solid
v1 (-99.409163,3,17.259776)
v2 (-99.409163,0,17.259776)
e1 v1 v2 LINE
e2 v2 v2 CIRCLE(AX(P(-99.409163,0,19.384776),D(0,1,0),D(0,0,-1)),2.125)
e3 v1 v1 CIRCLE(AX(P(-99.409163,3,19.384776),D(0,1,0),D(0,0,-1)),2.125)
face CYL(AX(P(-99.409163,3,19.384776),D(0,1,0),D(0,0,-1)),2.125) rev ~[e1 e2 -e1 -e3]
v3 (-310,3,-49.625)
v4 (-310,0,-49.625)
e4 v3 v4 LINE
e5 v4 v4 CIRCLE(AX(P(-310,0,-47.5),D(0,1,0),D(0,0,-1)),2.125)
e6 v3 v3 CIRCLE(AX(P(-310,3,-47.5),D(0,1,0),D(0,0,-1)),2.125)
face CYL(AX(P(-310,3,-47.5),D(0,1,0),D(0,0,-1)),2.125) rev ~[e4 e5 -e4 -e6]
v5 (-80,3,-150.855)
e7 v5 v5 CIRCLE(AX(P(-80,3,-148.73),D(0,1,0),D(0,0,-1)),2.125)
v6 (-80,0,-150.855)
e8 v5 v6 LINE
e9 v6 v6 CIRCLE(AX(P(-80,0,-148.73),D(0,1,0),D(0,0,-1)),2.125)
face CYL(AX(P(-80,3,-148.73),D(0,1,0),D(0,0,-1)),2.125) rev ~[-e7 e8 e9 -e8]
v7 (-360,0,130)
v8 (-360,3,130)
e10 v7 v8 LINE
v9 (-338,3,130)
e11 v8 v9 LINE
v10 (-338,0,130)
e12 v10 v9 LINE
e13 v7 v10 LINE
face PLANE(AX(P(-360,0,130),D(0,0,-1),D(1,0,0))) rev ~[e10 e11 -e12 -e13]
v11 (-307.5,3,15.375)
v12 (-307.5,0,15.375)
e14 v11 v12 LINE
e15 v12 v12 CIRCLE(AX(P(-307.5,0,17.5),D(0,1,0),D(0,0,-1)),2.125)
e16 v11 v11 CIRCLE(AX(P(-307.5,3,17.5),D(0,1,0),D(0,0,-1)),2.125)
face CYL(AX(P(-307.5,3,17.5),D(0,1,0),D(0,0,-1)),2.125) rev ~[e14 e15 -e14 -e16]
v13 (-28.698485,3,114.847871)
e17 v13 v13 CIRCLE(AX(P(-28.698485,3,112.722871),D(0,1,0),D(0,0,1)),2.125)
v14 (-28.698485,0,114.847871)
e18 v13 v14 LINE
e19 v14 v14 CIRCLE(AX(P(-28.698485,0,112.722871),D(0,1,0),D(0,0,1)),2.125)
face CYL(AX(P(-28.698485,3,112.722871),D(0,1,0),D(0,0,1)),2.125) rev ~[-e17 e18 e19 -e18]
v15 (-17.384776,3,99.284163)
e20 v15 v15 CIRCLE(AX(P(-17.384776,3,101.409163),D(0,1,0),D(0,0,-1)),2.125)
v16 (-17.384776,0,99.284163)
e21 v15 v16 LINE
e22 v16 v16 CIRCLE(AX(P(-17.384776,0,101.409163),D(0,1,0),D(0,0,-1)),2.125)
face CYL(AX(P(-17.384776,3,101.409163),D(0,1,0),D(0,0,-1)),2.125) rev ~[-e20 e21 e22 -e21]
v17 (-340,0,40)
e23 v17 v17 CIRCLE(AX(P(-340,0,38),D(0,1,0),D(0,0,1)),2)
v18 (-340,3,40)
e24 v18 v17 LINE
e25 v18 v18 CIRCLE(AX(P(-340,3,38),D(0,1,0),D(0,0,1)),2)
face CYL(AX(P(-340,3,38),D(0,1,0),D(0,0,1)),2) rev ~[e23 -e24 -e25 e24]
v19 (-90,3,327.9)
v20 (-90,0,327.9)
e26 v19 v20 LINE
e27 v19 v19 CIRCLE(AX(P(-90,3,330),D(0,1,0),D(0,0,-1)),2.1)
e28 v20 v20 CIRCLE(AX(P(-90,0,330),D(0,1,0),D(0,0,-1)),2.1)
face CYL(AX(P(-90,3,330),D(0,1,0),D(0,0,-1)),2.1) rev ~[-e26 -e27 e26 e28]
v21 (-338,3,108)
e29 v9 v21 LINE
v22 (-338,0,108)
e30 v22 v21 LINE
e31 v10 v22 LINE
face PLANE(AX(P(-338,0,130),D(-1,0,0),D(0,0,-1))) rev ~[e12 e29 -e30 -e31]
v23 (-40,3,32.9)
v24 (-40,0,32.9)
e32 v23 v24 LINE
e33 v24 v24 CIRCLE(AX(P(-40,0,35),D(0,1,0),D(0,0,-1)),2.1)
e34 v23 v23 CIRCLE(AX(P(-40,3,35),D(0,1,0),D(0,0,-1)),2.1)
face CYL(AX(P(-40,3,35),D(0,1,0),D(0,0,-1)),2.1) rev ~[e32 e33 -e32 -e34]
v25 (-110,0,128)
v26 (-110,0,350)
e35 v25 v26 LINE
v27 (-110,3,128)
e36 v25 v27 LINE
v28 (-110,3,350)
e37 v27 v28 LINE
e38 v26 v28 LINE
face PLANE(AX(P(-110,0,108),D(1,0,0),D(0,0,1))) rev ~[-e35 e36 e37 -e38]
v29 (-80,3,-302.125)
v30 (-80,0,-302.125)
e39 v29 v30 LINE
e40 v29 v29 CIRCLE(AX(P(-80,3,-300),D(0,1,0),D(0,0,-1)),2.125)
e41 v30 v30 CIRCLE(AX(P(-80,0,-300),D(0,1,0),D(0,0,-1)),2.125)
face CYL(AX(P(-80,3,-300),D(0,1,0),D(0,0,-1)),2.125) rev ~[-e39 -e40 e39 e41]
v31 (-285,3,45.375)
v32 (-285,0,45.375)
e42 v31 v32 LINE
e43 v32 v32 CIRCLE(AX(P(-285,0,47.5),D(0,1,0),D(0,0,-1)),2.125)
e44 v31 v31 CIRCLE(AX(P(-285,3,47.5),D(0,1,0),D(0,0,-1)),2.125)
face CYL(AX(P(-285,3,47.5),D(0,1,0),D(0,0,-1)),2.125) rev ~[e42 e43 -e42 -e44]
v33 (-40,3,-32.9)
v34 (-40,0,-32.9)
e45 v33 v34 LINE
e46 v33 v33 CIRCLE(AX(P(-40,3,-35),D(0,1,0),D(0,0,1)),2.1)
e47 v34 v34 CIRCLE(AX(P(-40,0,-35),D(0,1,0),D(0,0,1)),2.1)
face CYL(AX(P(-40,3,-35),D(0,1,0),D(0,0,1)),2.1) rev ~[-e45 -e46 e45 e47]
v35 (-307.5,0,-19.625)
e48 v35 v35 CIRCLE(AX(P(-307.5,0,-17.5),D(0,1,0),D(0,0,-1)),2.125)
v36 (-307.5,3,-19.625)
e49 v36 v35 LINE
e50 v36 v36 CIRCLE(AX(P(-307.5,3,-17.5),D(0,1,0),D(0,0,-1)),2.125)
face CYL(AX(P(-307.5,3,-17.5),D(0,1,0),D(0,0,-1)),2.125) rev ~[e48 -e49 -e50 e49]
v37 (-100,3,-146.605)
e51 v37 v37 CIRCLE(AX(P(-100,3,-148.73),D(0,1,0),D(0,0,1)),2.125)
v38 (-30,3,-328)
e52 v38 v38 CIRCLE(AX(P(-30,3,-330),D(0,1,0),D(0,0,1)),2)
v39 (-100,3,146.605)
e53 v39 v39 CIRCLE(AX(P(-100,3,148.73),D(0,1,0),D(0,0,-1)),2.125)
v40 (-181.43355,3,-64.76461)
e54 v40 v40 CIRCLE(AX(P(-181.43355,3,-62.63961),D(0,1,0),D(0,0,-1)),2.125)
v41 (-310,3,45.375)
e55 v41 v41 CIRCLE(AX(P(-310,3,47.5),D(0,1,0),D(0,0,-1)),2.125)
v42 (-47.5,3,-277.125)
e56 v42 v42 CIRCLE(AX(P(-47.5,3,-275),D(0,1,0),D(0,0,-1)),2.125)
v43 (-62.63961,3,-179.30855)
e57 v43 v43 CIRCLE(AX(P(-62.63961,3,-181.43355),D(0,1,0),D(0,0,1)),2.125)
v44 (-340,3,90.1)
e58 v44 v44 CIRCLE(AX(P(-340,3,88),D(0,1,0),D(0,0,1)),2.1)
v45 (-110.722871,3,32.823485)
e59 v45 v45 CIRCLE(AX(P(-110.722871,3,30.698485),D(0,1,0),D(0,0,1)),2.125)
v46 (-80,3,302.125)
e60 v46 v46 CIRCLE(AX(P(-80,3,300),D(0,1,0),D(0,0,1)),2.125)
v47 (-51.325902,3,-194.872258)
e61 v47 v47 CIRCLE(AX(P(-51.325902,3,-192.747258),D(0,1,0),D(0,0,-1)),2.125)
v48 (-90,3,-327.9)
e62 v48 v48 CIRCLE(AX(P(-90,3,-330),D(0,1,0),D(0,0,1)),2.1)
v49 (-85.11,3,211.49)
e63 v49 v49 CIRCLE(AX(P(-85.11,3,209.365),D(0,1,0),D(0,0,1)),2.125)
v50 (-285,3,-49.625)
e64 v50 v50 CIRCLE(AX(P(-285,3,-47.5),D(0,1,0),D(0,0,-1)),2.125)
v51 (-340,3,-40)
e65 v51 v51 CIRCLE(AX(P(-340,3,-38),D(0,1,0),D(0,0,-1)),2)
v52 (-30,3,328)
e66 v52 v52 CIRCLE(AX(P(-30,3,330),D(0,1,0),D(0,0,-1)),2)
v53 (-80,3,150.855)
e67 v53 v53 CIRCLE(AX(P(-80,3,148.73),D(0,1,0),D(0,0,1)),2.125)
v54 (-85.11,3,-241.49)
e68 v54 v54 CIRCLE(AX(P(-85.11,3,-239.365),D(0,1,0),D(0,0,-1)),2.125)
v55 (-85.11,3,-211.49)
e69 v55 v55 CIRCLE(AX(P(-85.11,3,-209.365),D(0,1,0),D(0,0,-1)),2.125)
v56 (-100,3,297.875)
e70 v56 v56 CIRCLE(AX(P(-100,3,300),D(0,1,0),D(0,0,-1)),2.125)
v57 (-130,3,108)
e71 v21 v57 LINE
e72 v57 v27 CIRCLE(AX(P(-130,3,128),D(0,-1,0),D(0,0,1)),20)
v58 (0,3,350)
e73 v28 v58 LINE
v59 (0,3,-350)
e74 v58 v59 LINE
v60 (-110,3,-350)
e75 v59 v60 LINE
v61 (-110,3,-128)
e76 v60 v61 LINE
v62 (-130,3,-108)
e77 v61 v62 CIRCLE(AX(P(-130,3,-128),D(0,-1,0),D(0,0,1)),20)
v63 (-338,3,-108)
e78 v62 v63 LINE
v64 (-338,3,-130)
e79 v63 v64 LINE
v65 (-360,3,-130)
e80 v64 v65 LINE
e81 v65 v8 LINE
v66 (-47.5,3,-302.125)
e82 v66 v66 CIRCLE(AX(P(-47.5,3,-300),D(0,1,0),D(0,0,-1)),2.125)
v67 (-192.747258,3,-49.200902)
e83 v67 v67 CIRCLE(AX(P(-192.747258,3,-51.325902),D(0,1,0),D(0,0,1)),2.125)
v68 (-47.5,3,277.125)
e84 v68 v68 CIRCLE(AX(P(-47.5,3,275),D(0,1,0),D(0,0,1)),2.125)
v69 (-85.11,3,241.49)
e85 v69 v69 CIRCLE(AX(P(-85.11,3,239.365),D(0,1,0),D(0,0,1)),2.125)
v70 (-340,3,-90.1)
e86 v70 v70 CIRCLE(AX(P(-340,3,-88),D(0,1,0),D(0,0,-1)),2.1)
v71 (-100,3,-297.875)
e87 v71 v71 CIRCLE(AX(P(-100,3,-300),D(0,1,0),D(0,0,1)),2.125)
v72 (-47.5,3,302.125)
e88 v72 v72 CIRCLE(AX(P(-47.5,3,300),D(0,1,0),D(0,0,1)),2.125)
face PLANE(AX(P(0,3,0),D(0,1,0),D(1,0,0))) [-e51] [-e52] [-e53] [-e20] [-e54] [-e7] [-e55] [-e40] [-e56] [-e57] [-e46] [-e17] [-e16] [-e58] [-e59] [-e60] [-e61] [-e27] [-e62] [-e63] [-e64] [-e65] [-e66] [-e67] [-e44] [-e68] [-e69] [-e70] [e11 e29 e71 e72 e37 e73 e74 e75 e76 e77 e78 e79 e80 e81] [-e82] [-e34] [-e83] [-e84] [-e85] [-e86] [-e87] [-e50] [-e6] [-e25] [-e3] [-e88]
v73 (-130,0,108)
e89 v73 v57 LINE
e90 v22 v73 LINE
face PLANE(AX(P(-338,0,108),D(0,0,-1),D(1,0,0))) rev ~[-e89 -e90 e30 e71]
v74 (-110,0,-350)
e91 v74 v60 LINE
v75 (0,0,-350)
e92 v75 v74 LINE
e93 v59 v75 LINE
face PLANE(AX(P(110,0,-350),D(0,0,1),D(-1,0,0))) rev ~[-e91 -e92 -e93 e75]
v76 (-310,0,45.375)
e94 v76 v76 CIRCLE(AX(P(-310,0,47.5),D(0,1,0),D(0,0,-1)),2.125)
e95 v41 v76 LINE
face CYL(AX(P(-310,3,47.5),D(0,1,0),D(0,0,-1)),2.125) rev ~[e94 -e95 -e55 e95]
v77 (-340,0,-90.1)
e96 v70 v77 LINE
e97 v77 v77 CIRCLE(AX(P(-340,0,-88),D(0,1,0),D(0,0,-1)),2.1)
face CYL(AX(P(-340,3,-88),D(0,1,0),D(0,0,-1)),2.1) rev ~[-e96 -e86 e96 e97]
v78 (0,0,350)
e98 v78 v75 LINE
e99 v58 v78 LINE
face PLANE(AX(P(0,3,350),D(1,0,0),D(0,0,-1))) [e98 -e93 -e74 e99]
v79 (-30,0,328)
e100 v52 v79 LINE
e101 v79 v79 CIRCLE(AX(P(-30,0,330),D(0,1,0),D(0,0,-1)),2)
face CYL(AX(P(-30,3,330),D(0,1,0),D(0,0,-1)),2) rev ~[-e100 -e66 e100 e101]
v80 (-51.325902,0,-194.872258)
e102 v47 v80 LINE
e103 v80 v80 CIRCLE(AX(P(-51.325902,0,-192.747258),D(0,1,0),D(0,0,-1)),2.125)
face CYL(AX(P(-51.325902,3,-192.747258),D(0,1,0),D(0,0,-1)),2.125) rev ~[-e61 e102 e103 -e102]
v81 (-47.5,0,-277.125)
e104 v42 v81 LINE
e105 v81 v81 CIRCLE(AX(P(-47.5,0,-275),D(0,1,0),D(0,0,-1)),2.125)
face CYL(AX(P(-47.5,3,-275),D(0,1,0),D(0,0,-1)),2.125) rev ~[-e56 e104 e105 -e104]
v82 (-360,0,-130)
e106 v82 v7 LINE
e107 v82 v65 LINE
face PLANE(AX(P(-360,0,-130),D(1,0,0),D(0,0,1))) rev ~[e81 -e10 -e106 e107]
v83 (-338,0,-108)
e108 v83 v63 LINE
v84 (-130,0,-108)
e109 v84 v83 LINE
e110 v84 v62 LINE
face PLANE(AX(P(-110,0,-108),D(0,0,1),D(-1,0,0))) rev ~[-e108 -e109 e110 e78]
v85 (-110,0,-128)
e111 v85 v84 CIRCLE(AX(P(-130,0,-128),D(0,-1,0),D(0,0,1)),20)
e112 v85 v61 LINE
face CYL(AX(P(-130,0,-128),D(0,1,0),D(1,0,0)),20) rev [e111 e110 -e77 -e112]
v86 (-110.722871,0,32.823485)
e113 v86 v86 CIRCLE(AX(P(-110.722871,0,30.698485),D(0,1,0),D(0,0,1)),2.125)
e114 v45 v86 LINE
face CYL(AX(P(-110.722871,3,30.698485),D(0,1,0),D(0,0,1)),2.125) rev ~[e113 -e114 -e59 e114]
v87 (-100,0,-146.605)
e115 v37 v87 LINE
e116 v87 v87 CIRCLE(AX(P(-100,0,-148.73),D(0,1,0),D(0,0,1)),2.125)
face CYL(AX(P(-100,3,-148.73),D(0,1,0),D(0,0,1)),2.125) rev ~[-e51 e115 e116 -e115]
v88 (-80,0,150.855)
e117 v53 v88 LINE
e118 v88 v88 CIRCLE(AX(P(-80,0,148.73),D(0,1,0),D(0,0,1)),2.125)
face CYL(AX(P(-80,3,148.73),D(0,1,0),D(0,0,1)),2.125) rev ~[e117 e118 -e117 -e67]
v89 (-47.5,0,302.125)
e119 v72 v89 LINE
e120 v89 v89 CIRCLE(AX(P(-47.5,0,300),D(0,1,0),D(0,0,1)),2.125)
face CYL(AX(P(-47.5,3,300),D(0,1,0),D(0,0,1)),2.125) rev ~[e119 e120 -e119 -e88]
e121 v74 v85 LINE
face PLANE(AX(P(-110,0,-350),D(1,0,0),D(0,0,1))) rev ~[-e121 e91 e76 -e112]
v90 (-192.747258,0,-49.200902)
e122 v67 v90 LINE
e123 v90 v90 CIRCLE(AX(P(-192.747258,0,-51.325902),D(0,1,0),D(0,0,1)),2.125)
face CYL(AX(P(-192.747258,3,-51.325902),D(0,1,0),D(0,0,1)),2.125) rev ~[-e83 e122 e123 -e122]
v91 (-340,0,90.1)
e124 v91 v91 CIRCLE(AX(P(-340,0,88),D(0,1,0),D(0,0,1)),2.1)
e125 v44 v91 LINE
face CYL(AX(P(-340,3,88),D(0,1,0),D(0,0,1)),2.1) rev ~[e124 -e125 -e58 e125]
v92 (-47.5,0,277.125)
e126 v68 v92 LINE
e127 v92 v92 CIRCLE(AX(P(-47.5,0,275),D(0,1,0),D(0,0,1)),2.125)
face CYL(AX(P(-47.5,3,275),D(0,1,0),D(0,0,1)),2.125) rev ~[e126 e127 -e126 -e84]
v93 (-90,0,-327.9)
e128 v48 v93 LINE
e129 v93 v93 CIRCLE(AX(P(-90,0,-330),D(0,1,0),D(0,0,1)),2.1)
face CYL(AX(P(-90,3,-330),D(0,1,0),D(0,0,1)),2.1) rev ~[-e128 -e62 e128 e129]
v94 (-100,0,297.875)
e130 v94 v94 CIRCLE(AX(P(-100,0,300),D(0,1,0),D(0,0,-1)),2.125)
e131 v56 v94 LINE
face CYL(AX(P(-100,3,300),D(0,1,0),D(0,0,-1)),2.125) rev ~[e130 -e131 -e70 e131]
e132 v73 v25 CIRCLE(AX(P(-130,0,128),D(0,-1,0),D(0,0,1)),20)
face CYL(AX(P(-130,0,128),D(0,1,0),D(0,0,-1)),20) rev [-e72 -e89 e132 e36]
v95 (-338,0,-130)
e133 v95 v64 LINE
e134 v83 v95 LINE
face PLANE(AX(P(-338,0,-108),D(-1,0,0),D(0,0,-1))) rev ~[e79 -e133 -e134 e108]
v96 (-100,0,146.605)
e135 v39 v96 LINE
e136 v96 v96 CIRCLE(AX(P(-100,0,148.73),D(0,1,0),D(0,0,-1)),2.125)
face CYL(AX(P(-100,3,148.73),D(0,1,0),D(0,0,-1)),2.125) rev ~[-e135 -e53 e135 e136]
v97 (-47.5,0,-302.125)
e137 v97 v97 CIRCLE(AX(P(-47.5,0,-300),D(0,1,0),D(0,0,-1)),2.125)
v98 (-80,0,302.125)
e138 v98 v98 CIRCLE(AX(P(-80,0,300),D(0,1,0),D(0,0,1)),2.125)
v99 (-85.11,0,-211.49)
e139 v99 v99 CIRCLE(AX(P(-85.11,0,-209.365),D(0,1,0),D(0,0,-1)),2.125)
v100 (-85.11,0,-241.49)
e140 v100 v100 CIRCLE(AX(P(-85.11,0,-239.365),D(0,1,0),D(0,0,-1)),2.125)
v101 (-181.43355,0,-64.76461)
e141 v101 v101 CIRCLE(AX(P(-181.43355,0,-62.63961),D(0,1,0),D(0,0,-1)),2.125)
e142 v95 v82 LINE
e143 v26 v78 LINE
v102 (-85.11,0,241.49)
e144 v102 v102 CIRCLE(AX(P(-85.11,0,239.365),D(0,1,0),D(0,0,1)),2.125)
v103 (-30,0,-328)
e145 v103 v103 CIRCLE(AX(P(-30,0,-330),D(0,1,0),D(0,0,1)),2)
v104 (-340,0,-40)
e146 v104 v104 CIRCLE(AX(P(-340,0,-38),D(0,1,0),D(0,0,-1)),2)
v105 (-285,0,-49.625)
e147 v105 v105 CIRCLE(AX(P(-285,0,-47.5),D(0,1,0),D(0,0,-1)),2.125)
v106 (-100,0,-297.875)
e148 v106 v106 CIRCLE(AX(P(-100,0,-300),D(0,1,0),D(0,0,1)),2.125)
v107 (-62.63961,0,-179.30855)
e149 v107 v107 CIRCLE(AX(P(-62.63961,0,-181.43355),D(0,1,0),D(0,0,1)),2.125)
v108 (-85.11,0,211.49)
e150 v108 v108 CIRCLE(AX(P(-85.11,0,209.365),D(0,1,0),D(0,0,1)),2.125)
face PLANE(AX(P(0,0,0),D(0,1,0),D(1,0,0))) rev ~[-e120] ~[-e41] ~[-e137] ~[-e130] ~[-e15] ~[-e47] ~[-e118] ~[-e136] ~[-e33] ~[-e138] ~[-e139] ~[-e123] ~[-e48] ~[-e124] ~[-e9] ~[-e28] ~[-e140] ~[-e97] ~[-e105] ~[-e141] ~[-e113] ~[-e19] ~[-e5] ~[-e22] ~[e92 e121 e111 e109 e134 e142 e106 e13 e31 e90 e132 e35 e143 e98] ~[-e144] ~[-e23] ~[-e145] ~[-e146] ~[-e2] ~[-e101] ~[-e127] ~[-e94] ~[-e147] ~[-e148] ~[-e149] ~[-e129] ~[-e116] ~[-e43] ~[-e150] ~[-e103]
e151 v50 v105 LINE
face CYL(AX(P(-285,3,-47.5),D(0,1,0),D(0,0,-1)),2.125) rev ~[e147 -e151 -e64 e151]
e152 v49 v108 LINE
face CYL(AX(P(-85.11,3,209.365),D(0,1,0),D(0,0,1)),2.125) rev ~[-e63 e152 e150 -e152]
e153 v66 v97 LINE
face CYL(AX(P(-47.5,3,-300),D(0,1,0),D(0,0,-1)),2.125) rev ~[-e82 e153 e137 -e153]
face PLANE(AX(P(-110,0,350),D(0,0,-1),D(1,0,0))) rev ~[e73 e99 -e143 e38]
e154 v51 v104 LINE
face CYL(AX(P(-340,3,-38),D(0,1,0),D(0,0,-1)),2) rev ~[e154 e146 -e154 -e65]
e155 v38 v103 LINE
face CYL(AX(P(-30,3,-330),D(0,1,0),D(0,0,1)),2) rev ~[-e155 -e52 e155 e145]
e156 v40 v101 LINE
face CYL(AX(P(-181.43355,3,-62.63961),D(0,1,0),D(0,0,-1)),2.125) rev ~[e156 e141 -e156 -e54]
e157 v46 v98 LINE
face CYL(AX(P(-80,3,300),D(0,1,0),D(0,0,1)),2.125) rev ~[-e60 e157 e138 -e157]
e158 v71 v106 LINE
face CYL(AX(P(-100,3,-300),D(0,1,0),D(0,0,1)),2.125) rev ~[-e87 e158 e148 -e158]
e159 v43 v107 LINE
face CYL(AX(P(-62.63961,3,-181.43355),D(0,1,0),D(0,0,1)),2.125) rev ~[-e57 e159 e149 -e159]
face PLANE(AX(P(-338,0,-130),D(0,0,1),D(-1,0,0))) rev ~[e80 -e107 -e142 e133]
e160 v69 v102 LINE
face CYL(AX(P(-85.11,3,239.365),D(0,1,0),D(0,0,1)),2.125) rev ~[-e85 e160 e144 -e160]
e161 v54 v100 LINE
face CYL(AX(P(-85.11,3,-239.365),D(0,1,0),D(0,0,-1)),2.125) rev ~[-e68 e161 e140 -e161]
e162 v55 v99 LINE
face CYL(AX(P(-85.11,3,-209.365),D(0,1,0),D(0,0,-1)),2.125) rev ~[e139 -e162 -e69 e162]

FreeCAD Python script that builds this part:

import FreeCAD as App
import Part
import Sketcher


def edges_at(feature, points):
    """Names of the edges that pass closest to the given points."""
    edges = feature.Shape.Edges
    near = lambda p: min(range(len(edges)), key=lambda i: edges[i].distToShape(Part.Vertex(*p))[0])
    return sorted({f"Edge{near(p) + 1}" for p in points})


def add_polygon(sketch, points):
    """Adds a closed chain of lines whose ends are joined by coincident constraints."""
    first, n = sketch.GeometryCount, len(points)
    for a, b in zip(points, points[1:] + points[:1]):
        sketch.addGeometry(Part.LineSegment(App.Vector(*a, 0), App.Vector(*b, 0)), False)
    for i in range(n):
        sketch.addConstraint(Sketcher.Constraint("Coincident", first + i, 2, first + (i + 1) % n, 1))

doc = App.newDocument("Part")
body = doc.addObject("PartDesign::Body", "Body")

# Sketch on XZ plane
sketch1 = body.newObject("Sketcher::SketchObject", "Sketch")
sketch1.AttachmentSupport = (doc.getObject("XZ_Plane"), [""])
sketch1.MapMode = "FlatFace"
add_polygon(sketch1, [(-110, -350), (-110, -108), (-338, -108), (-338, -130), (-360, -130), (-360, 130), (-338, 130), (-338, 108), (-110, 108), (-110, 350), (110, 350), (110, 108), (338, 108), (338, 130), (360, 130), (360, -130), (338, -130), (338, -108), (110, -108), (110, -350)])  # lines 0-19
sketch1.addConstraint(Sketcher.Constraint("Vertical", 0))
sketch1.addConstraint(Sketcher.Constraint("Horizontal", 1))
sketch1.addConstraint(Sketcher.Constraint("Vertical", 2))
sketch1.addConstraint(Sketcher.Constraint("Horizontal", 3))
sketch1.addConstraint(Sketcher.Constraint("Vertical", 4))
sketch1.addConstraint(Sketcher.Constraint("Horizontal", 5))
sketch1.addConstraint(Sketcher.Constraint("Vertical", 6))
sketch1.addConstraint(Sketcher.Constraint("Horizontal", 7))
sketch1.addConstraint(Sketcher.Constraint("Vertical", 8))
sketch1.addConstraint(Sketcher.Constraint("Horizontal", 9))
sketch1.addConstraint(Sketcher.Constraint("Vertical", 10))
sketch1.addConstraint(Sketcher.Constraint("Horizontal", 11))
sketch1.addConstraint(Sketcher.Constraint("Vertical", 12))
sketch1.addConstraint(Sketcher.Constraint("Horizontal", 13))
sketch1.addConstraint(Sketcher.Constraint("Vertical", 14))
sketch1.addConstraint(Sketcher.Constraint("Horizontal", 15))
sketch1.addConstraint(Sketcher.Constraint("Vertical", 16))
sketch1.addConstraint(Sketcher.Constraint("Horizontal", 17))
sketch1.addConstraint(Sketcher.Constraint("Vertical", 18))
sketch1.addConstraint(Sketcher.Constraint("Horizontal", 19))
sketch1.addConstraint(Sketcher.Constraint("Symmetric", 0, 2, 10, 2, -1, 1))
sketch1.addConstraint(Sketcher.Constraint("Symmetric", 2, 2, 12, 2, -1, 1))
sketch1.addConstraint(Sketcher.Constraint("Symmetric", 4, 2, 14, 2, -1, 1))
sketch1.addConstraint(Sketcher.Constraint("Symmetric", 6, 2, 16, 2, -1, 1))
sketch1.addConstraint(Sketcher.Constraint("Symmetric", 8, 2, 18, 2, -1, 1))
sketch1.addConstraint(Sketcher.Constraint("Symmetric", 7, 2, 10, 2, -2))
sketch1.addConstraint(Sketcher.Constraint("Symmetric", 5, 2, 12, 2, -2))
sketch1.addConstraint(Sketcher.Constraint("Equal", 15, 2))
sketch1.addConstraint(Sketcher.Constraint("DistanceX", 1, 2, 1, 1, 228.0))
sketch1.addConstraint(Sketcher.Constraint("DistanceX", 3, 2, 3, 1, 22.0))
sketch1.addConstraint(Sketcher.Constraint("DistanceX", 9, 1, 9, 2, 220.0))
sketch1.addConstraint(Sketcher.Constraint("DistanceY", 0, 1, 0, 2, 242.0))
sketch1.addConstraint(Sketcher.Constraint("DistanceY", 4, 1, 4, 2, 260.0))
pad1 = body.newObject("PartDesign::Pad", "Pad")
pad1.Profile = sketch1
pad1.Length = 3
pad1.Reversed = True

# Sketch on XZ plane
sketch2 = body.newObject("Sketcher::SketchObject", "Sketch001")
sketch2.AttachmentSupport = (doc.getObject("XZ_Plane"), [""])
sketch2.MapMode = "FlatFace"
sketch2.AttachmentOffset = App.Placement(App.Vector(0, 0, -3), App.Rotation())
sketch2.addGeometry(Part.Circle(App.Vector(310, -47.5, 0), App.Vector(0, 0, 1), 2.1), False)
sketch2.addGeometry(Part.Circle(App.Vector(285, -47.5, 0), App.Vector(0, 0, 1), 2.1), False)
sketch2.addGeometry(Part.Circle(App.Vector(307.5, -17.5, 0), App.Vector(0, 0, 1), 2.1), False)
sketch2.addGeometry(Part.Circle(App.Vector(307.5, 17.5, 0), App.Vector(0, 0, 1), 2.1), False)
sketch2.addGeometry(Part.Circle(App.Vector(310, 47.5, 0), App.Vector(0, 0, 1), 2.1), False)
sketch2.addGeometry(Part.Circle(App.Vector(285, 47.5, 0), App.Vector(0, 0, 1), 2.1), False)
sketch2.addGeometry(Part.Circle(App.Vector(-285, 47.5, 0), App.Vector(0, 0, 1), 2.1), False)
sketch2.addGeometry(Part.Circle(App.Vector(-310, 47.5, 0), App.Vector(0, 0, 1), 2.1), False)
sketch2.addGeometry(Part.Circle(App.Vector(-307.5, 17.5, 0), App.Vector(0, 0, 1), 2.1), False)
sketch2.addGeometry(Part.Circle(App.Vector(-307.5, -17.5, 0), App.Vector(0, 0, 1), 2.1), False)
sketch2.addGeometry(Part.Circle(App.Vector(-285, -47.5, 0), App.Vector(0, 0, 1), 2.1), False)
sketch2.addGeometry(Part.Circle(App.Vector(-310, -47.5, 0), App.Vector(0, 0, 1), 2.1), False)
sketch2.addGeometry(Part.Circle(App.Vector(47.5, -300, 0), App.Vector(0, 0, 1), 2.1), False)
sketch2.addGeometry(Part.Circle(App.Vector(47.5, -275, 0), App.Vector(0, 0, 1), 2.1), False)
sketch2.addGeometry(Part.Circle(App.Vector(-47.5, -275, 0), App.Vector(0, 0, 1), 2.1), False)
sketch2.addGeometry(Part.Circle(App.Vector(-47.5, -300, 0), App.Vector(0, 0, 1), 2.1), False)
sketch2.addGeometry(Part.Circle(App.Vector(-47.5, 300, 0), App.Vector(0, 0, 1), 2.1), False)
sketch2.addGeometry(Part.Circle(App.Vector(-47.5, 275, 0), App.Vector(0, 0, 1), 2.1), False)
sketch2.addGeometry(Part.Circle(App.Vector(47.5, 275, 0), App.Vector(0, 0, 1), 2.1), False)
sketch2.addGeometry(Part.Circle(App.Vector(47.5, 300, 0), App.Vector(0, 0, 1), 2.1), False)
sketch2.addConstraint(Sketcher.Constraint("Equal", 0, 1))
sketch2.addConstraint(Sketcher.Constraint("Equal", 1, 2))
sketch2.addConstraint(Sketcher.Constraint("Equal", 2, 3))
sketch2.addConstraint(Sketcher.Constraint("Equal", 3, 4))
sketch2.addConstraint(Sketcher.Constraint("Equal", 4, 5))
sketch2.addConstraint(Sketcher.Constraint("Equal", 5, 6))
sketch2.addConstraint(Sketcher.Constraint("Equal", 6, 7))
sketch2.addConstraint(Sketcher.Constraint("Equal", 7, 8))
sketch2.addConstraint(Sketcher.Constraint("Equal", 8, 9))
sketch2.addConstraint(Sketcher.Constraint("Equal", 9, 10))
sketch2.addConstraint(Sketcher.Constraint("Equal", 10, 11))
sketch2.addConstraint(Sketcher.Constraint("Equal", 11, 12))
sketch2.addConstraint(Sketcher.Constraint("Equal", 12, 13))
sketch2.addConstraint(Sketcher.Constraint("Equal", 13, 14))
sketch2.addConstraint(Sketcher.Constraint("Equal", 14, 15))
sketch2.addConstraint(Sketcher.Constraint("Equal", 15, 16))
sketch2.addConstraint(Sketcher.Constraint("Equal", 16, 17))
sketch2.addConstraint(Sketcher.Constraint("Equal", 17, 18))
sketch2.addConstraint(Sketcher.Constraint("Equal", 18, 19))
sketch2.addConstraint(Sketcher.Constraint("Symmetric", 1, 3, 6, 3, -1, 1))
sketch2.addConstraint(Sketcher.Constraint("Symmetric", 0, 3, 7, 3, -1, 1))
sketch2.addConstraint(Sketcher.Constraint("Symmetric", 2, 3, 8, 3, -1, 1))
sketch2.addConstraint(Sketcher.Constraint("Symmetric", 3, 3, 9, 3, -1, 1))
sketch2.addConstraint(Sketcher.Constraint("Symmetric", 5, 3, 10, 3, -1, 1))
sketch2.addConstraint(Sketcher.Constraint("Symmetric", 4, 3, 11, 3, -1, 1))
sketch2.addConstraint(Sketcher.Constraint("Symmetric", 12, 3, 16, 3, -1, 1))
sketch2.addConstraint(Sketcher.Constraint("Symmetric", 13, 3, 17, 3, -1, 1))
sketch2.addConstraint(Sketcher.Constraint("Symmetric", 14, 3, 18, 3, -1, 1))
sketch2.addConstraint(Sketcher.Constraint("Symmetric", 15, 3, 19, 3, -1, 1))
sketch2.addConstraint(Sketcher.Constraint("Symmetric", 5, 3, 6, 3, -2))
sketch2.addConstraint(Sketcher.Constraint("Symmetric", 4, 3, 7, 3, -2))
sketch2.addConstraint(Sketcher.Constraint("Symmetric", 3, 3, 8, 3, -2))
sketch2.addConstraint(Sketcher.Constraint("Symmetric", 13, 3, 14, 3, -2))
sketch2.addConstraint(Sketcher.Constraint("Symmetric", 12, 3, 15, 3, -2))
sketch2.addConstraint(Sketcher.Constraint("Horizontal", 0, 3, 1, 3))
sketch2.addConstraint(Sketcher.Constraint("Vertical", 12, 3, 13, 3))
sketch2.addConstraint(Sketcher.Constraint("Diameter", 0, 4.25))
sketch2.addConstraint(Sketcher.Constraint("DistanceX", -1, 1, 0, 3, 310.0))
sketch2.addConstraint(Sketcher.Constraint("DistanceX", -1, 1, 1, 3, 285.0))
sketch2.addConstraint(Sketcher.Constraint("DistanceY", 12, 3, -1, 1, 300.0))
sketch2.addConstraint(Sketcher.Constraint("DistanceY", 13, 3, -1, 1, 275.0))
sketch2.addConstraint(Sketcher.Constraint("DistanceY", 0, 3, 2, 3, 30.0))
sketch2.addConstraint(Sketcher.Constraint("DistanceY", 2, 3, 3, 3, 35.0))
sketch2.addConstraint(Sketcher.Constraint("DistanceX", 8, 3, 3, 3, 615.0))
sketch2.addConstraint(Sketcher.Constraint("DistanceX", 12, 3, 2, 3, 260.0))
pocket1 = body.newObject("PartDesign::Pocket", "Pocket")
pocket1.Profile = sketch2
pocket1.Type = "ThroughAll"
pocket1.Reversed = True

# Sketch on XZ plane
sketch3 = body.newObject("Sketcher::SketchObject", "Sketch002")
sketch3.AttachmentSupport = (doc.getObject("XZ_Plane"), [""])
sketch3.MapMode = "FlatFace"
sketch3.AttachmentOffset = App.Placement(App.Vector(0, 0, -3), App.Rotation())
sketch3.addGeometry(Part.Circle(App.Vector(340, -38, 0), App.Vector(0, 0, 1), 2), False)
sketch3.addGeometry(Part.Circle(App.Vector(340, 38, 0), App.Vector(0, 0, 1), 2), False)
sketch3.addGeometry(Part.Circle(App.Vector(-340, 38, 0), App.Vector(0, 0, 1), 2), False)
sketch3.addGeometry(Part.Circle(App.Vector(-340, -38, 0), App.Vector(0, 0, 1), 2), False)
sketch3.addGeometry(Part.Circle(App.Vector(-30, -330, 0), App.Vector(0, 0, 1), 2), False)
sketch3.addGeometry(Part.Circle(App.Vector(30, -330, 0), App.Vector(0, 0, 1), 2), False)
sketch3.addGeometry(Part.Circle(App.Vector(30, 330, 0), App.Vector(0, 0, 1), 2), False)
sketch3.addGeometry(Part.Circle(App.Vector(-30, 330, 0), App.Vector(0, 0, 1), 2), False)
sketch3.addConstraint(Sketcher.Constraint("Equal", 0, 1))
sketch3.addConstraint(Sketcher.Constraint("Equal", 1, 2))
sketch3.addConstraint(Sketcher.Constraint("Equal", 2, 3))
sketch3.addConstraint(Sketcher.Constraint("Equal", 3, 4))
sketch3.addConstraint(Sketcher.Constraint("Equal", 4, 5))
sketch3.addConstraint(Sketcher.Constraint("Equal", 5, 6))
sketch3.addConstraint(Sketcher.Constraint("Equal", 6, 7))
sketch3.addConstraint(Sketcher.Constraint("Symmetric", 0, 3, 2, 3, -1, 1))
sketch3.addConstraint(Sketcher.Constraint("Symmetric", 1, 3, 3, 3, -1, 1))
sketch3.addConstraint(Sketcher.Constraint("Symmetric", 4, 3, 6, 3, -1, 1))
sketch3.addConstraint(Sketcher.Constraint("Symmetric", 5, 3, 7, 3, -1, 1))
sketch3.addConstraint(Sketcher.Constraint("Symmetric", 1, 3, 2, 3, -2))
sketch3.addConstraint(Sketcher.Constraint("Symmetric", 4, 3, 5, 3, -2))
sketch3.addConstraint(Sketcher.Constraint("Diameter", 0, 4.0))
sketch3.addConstraint(Sketcher.Constraint("DistanceX", -1, 1, 0, 3, 340.0))
sketch3.addConstraint(Sketcher.Constraint("DistanceY", 0, 3, -1, 1, 38.0))
sketch3.addConstraint(Sketcher.Constraint("DistanceX", 4, 3, -1, 1, 30.0))
sketch3.addConstraint(Sketcher.Constraint("DistanceY", 4, 3, -1, 1, 330.0))
pocket2 = body.newObject("PartDesign::Pocket", "Pocket001")
pocket2.Profile = sketch3
pocket2.Type = "ThroughAll"
pocket2.Reversed = True

# Sketch on XZ plane
sketch4 = body.newObject("Sketcher::SketchObject", "Sketch003")
sketch4.AttachmentSupport = (doc.getObject("XZ_Plane"), [""])
sketch4.MapMode = "FlatFace"
sketch4.AttachmentOffset = App.Placement(App.Vector(0, 0, -3), App.Rotation())
sketch4.addGeometry(Part.Circle(App.Vector(80, -300, 0), App.Vector(0, 0, 1), 2.1), False)
sketch4.addGeometry(Part.Circle(App.Vector(80, -148.7, 0), App.Vector(0, 0, 1), 2.1), False)
sketch4.addGeometry(Part.Circle(App.Vector(85.1, -239.4, 0), App.Vector(0, 0, 1), 2.1), False)
sketch4.addGeometry(Part.Circle(App.Vector(85.1, -209.4, 0), App.Vector(0, 0, 1), 2.1), False)
sketch4.addGeometry(Part.Circle(App.Vector(100, -148.7, 0), App.Vector(0, 0, 1), 2.1), False)
sketch4.addGeometry(Part.Circle(App.Vector(100, -300, 0), App.Vector(0, 0, 1), 2.1), False)
sketch4.addGeometry(Part.Circle(App.Vector(-100, -300, 0), App.Vector(0, 0, 1), 2.1), False)
sketch4.addGeometry(Part.Circle(App.Vector(-100, -148.7, 0), App.Vector(0, 0, 1), 2.1), False)
sketch4.addGeometry(Part.Circle(App.Vector(-85.1, -209.4, 0), App.Vector(0, 0, 1), 2.1), False)
sketch4.addGeometry(Part.Circle(App.Vector(-85.1, -239.4, 0), App.Vector(0, 0, 1), 2.1), False)
sketch4.addGeometry(Part.Circle(App.Vector(-80, -148.7, 0), App.Vector(0, 0, 1), 2.1), False)
sketch4.addGeometry(Part.Circle(App.Vector(-80, -300, 0), App.Vector(0, 0, 1), 2.1), False)
sketch4.addGeometry(Part.Circle(App.Vector(-80, 300, 0), App.Vector(0, 0, 1), 2.1), False)
sketch4.addGeometry(Part.Circle(App.Vector(-80, 148.7, 0), App.Vector(0, 0, 1), 2.1), False)
sketch4.addGeometry(Part.Circle(App.Vector(-85.1, 239.4, 0), App.Vector(0, 0, 1), 2.1), False)
sketch4.addGeometry(Part.Circle(App.Vector(-85.1, 209.4, 0), App.Vector(0, 0, 1), 2.1), False)
sketch4.addGeometry(Part.Circle(App.Vector(-100, 148.7, 0), App.Vector(0, 0, 1), 2.1), False)
sketch4.addGeometry(Part.Circle(App.Vector(-100, 300, 0), App.Vector(0, 0, 1), 2.1), False)
sketch4.addGeometry(Part.Circle(App.Vector(100, 300, 0), App.Vector(0, 0, 1), 2.1), False)
sketch4.addGeometry(Part.Circle(App.Vector(100, 148.7, 0), App.Vector(0, 0, 1), 2.1), False)
sketch4.addGeometry(Part.Circle(App.Vector(85.1, 209.4, 0), App.Vector(0, 0, 1), 2.1), False)
sketch4.addGeometry(Part.Circle(App.Vector(85.1, 239.4, 0), App.Vector(0, 0, 1), 2.1), False)
sketch4.addGeometry(Part.Circle(App.Vector(80, 148.7, 0), App.Vector(0, 0, 1), 2.1), False)
sketch4.addGeometry(Part.Circle(App.Vector(80, 300, 0), App.Vector(0, 0, 1), 2.1), False)
sketch4.addConstraint(Sketcher.Constraint("Equal", 0, 1))
sketch4.addConstraint(Sketcher.Constraint("Equal", 1, 2))
sketch4.addConstraint(Sketcher.Constraint("Equal", 2, 3))
sketch4.addConstraint(Sketcher.Constraint("Equal", 3, 4))
sketch4.addConstraint(Sketcher.Constraint("Equal", 4, 5))
sketch4.addConstraint(Sketcher.Constraint("Equal", 5, 6))
sketch4.addConstraint(Sketcher.Constraint("Equal", 6, 7))
sketch4.addConstraint(Sketcher.Constraint("Equal", 7, 8))
sketch4.addConstraint(Sketcher.Constraint("Equal", 8, 9))
sketch4.addConstraint(Sketcher.Constraint("Equal", 9, 10))
sketch4.addConstraint(Sketcher.Constraint("Equal", 10, 11))
sketch4.addConstraint(Sketcher.Constraint("Equal", 11, 12))
sketch4.addConstraint(Sketcher.Constraint("Equal", 12, 13))
sketch4.addConstraint(Sketcher.Constraint("Equal", 13, 14))
sketch4.addConstraint(Sketcher.Constraint("Equal", 14, 15))
sketch4.addConstraint(Sketcher.Constraint("Equal", 15, 16))
sketch4.addConstraint(Sketcher.Constraint("Equal", 16, 17))
sketch4.addConstraint(Sketcher.Constraint("Equal", 17, 18))
sketch4.addConstraint(Sketcher.Constraint("Equal", 18, 19))
sketch4.addConstraint(Sketcher.Constraint("Equal", 19, 20))
sketch4.addConstraint(Sketcher.Constraint("Equal", 20, 21))
sketch4.addConstraint(Sketcher.Constraint("Equal", 21, 22))
sketch4.addConstraint(Sketcher.Constraint("Equal", 22, 23))
sketch4.addConstraint(Sketcher.Constraint("Symmetric", 0, 3, 12, 3, -1, 1))
sketch4.addConstraint(Sketcher.Constraint("Symmetric", 1, 3, 13, 3, -1, 1))
sketch4.addConstraint(Sketcher.Constraint("Symmetric", 2, 3, 14, 3, -1, 1))
sketch4.addConstraint(Sketcher.Constraint("Symmetric", 3, 3, 15, 3, -1, 1))
sketch4.addConstraint(Sketcher.Constraint("Symmetric", 4, 3, 16, 3, -1, 1))
sketch4.addConstraint(Sketcher.Constraint("Symmetric", 5, 3, 17, 3, -1, 1))
sketch4.addConstraint(Sketcher.Constraint("Symmetric", 6, 3, 18, 3, -1, 1))
sketch4.addConstraint(Sketcher.Constraint("Symmetric", 7, 3, 19, 3, -1, 1))
sketch4.addConstraint(Sketcher.Constraint("Symmetric", 8, 3, 20, 3, -1, 1))
sketch4.addConstraint(Sketcher.Constraint("Symmetric", 9, 3, 21, 3, -1, 1))
sketch4.addConstraint(Sketcher.Constraint("Symmetric", 10, 3, 22, 3, -1, 1))
sketch4.addConstraint(Sketcher.Constraint("Symmetric", 11, 3, 23, 3, -1, 1))
sketch4.addConstraint(Sketcher.Constraint("Symmetric", 5, 3, 6, 3, -2))
sketch4.addConstraint(Sketcher.Constraint("Symmetric", 4, 3, 7, 3, -2))
sketch4.addConstraint(Sketcher.Constraint("Symmetric", 3, 3, 8, 3, -2))
sketch4.addConstraint(Sketcher.Constraint("Symmetric", 2, 3, 9, 3, -2))
sketch4.addConstraint(Sketcher.Constraint("Symmetric", 1, 3, 10, 3, -2))
sketch4.addConstraint(Sketcher.Constraint("Symmetric", 0, 3, 11, 3, -2))
sketch4.addConstraint(Sketcher.Constraint("Horizontal", 1, 3, 4, 3))
sketch4.addConstraint(Sketcher.Constraint("Horizontal", 0, 3, 5, 3))
sketch4.addConstraint(Sketcher.Constraint("Vertical", 0, 3, 1, 3))
sketch4.addConstraint(Sketcher.Constraint("Vertical", 2, 3, 3, 3))
sketch4.addConstraint(Sketcher.Constraint("Vertical", 4, 3, 5, 3))
sketch4.addConstraint(Sketcher.Constraint("Diameter", 0, 4.25))
sketch4.addConstraint(Sketcher.Constraint("DistanceX", -1, 1, 0, 3, 80.0))
sketch4.addConstraint(Sketcher.Constraint("DistanceY", 0, 3, -1, 1, 300.0))
sketch4.addConstraint(Sketcher.Constraint("DistanceX", -1, 1, 4, 3, 100.0))
sketch4.addConstraint(Sketcher.Constraint("DistanceY", 2, 3, 3, 3, 30.0))
sketch4.addConstraint(Sketcher.Constraint("DistanceY", 1, 3, -1, 1, 148.73))
sketch4.addConstraint(Sketcher.Constraint("DistanceX", -1, 1, 2, 3, 85.11))
sketch4.addConstraint(Sketcher.Constraint("DistanceY", 2, 3, -1, 1, 239.365))
pocket3 = body.newObject("PartDesign::Pocket", "Pocket002")
pocket3.Profile = sketch4
pocket3.Length = 10
pocket3.Reversed = True
doc.recompute()

fillet = body.newObject("PartDesign::Fillet", "Fillet")
fillet.Base = (pocket3, edges_at(pocket3, [
    (110, 1.5, -108),
    (110, 1.5, 108),
    (-110, 1.5, 108),
    (-110, 1.5, -108),
]))
fillet.Radius = 20

# Sketch on XZ plane
sketch5 = body.newObject("Sketcher::SketchObject", "Sketch004")
sketch5.AttachmentSupport = (doc.getObject("XZ_Plane"), [""])
sketch5.MapMode = "FlatFace"
sketch5.AttachmentOffset = App.Placement(App.Vector(0, 0, -3), App.Rotation())
sketch5.addGeometry(Part.Circle(App.Vector(53.3, 194.7, 0), App.Vector(0, 0, 1), 2.1), False)
sketch5.addGeometry(Part.Circle(App.Vector(-192.7, -51.3, 0), App.Vector(0, 0, 1), 2.1), False)
sketch5.addGeometry(Part.Circle(App.Vector(-28.7, 112.7, 0), App.Vector(0, 0, 1), 2.1), False)
sketch5.addGeometry(Part.Circle(App.Vector(-110.7, 30.7, 0), App.Vector(0, 0, 1), 2.1), False)
sketch5.addGeometry(Part.Circle(App.Vector(64.6, 183.4, 0), App.Vector(0, 0, 1), 2.1), False)
sketch5.addGeometry(Part.Circle(App.Vector(-17.4, 101.4, 0), App.Vector(0, 0, 1), 2.1), False)
sketch5.addGeometry(Part.Circle(App.Vector(-99.4, 19.4, 0), App.Vector(0, 0, 1), 2.1), False)
sketch5.addGeometry(Part.Circle(App.Vector(-181.4, -62.6, 0), App.Vector(0, 0, 1), 2.1), False)
sketch5.addGeometry(Part.Circle(App.Vector(-62.6, -181.4, 0), App.Vector(0, 0, 1), 2.1), False)
sketch5.addGeometry(Part.Circle(App.Vector(19.4, -99.4, 0), App.Vector(0, 0, 1), 2.1), False)
sketch5.addGeometry(Part.Circle(App.Vector(101.4, -17.4, 0), App.Vector(0, 0, 1), 2.1), False)
sketch5.addGeometry(Part.Circle(App.Vector(183.4, 64.6, 0), App.Vector(0, 0, 1), 2.1), False)
sketch5.addGeometry(Part.Circle(App.Vector(30.7, -110.7, 0), App.Vector(0, 0, 1), 2.1), False)
sketch5.addGeometry(Part.Circle(App.Vector(112.7, -28.7, 0), App.Vector(0, 0, 1), 2.1), False)
sketch5.addGeometry(Part.Circle(App.Vector(-51.3, -192.7, 0), App.Vector(0, 0, 1), 2.1), False)
sketch5.addGeometry(Part.Circle(App.Vector(194.7, 53.3, 0), App.Vector(0, 0, 1), 2.1), False)
sketch5.addConstraint(Sketcher.Constraint("Equal", 0, 1))
sketch5.addConstraint(Sketcher.Constraint("Equal", 1, 2))
sketch5.addConstraint(Sketcher.Constraint("Equal", 2, 3))
sketch5.addConstraint(Sketcher.Constraint("Equal", 3, 4))
sketch5.addConstraint(Sketcher.Constraint("Equal", 4, 5))
sketch5.addConstraint(Sketcher.Constraint("Equal", 5, 6))
sketch5.addConstraint(Sketcher.Constraint("Equal", 6, 7))
sketch5.addConstraint(Sketcher.Constraint("Equal", 7, 8))
sketch5.addConstraint(Sketcher.Constraint("Equal", 8, 9))
sketch5.addConstraint(Sketcher.Constraint("Equal", 9, 10))
sketch5.addConstraint(Sketcher.Constraint("Equal", 10, 11))
sketch5.addConstraint(Sketcher.Constraint("Equal", 11, 12))
sketch5.addConstraint(Sketcher.Constraint("Equal", 12, 13))
sketch5.addConstraint(Sketcher.Constraint("Equal", 13, 14))
sketch5.addConstraint(Sketcher.Constraint("Equal", 14, 15))
sketch5.addConstraint(Sketcher.Constraint("Diameter", 0, 4.25))
sketch5.addConstraint(Sketcher.Constraint("DistanceX", -1, 1, 0, 3, 53.325902))
sketch5.addConstraint(Sketcher.Constraint("DistanceY", 1, 3, -1, 1, 51.325902))
sketch5.addConstraint(Sketcher.Constraint("DistanceX", 14, 3, -1, 1, 51.325902))
sketch5.addConstraint(Sketcher.Constraint("DistanceY", -1, 1, 15, 3, 53.325902))
sketch5.addConstraint(Sketcher.Constraint("DistanceY", -1, 1, 0, 3, 194.747258))
sketch5.addConstraint(Sketcher.Constraint("DistanceX", 1, 3, -1, 1, 192.747258))
sketch5.addConstraint(Sketcher.Constraint("DistanceY", -1, 1, 2, 3, 112.722871))
sketch5.addConstraint(Sketcher.Constraint("DistanceX", 3, 3, -1, 1, 110.722871))
sketch5.addConstraint(Sketcher.Constraint("DistanceX", -1, 1, 4, 3, 64.63961))
sketch5.addConstraint(Sketcher.Constraint("DistanceY", -1, 1, 4, 3, 183.43355))
sketch5.addConstraint(Sketcher.Constraint("DistanceX", 7, 3, -1, 1, 181.43355))
sketch5.addConstraint(Sketcher.Constraint("DistanceY", 7, 3, -1, 1, 62.63961))
sketch5.addConstraint(Sketcher.Constraint("DistanceX", 8, 3, -1, 1, 62.63961))
sketch5.addConstraint(Sketcher.Constraint("DistanceY", 8, 3, -1, 1, 181.43355))
sketch5.addConstraint(Sketcher.Constraint("DistanceX", -1, 1, 11, 3, 183.43355))
sketch5.addConstraint(Sketcher.Constraint("DistanceY", -1, 1, 11, 3, 64.63961))
sketch5.addConstraint(Sketcher.Constraint("DistanceY", 12, 3, -1, 1, 110.722871))
sketch5.addConstraint(Sketcher.Constraint("DistanceX", -1, 1, 13, 3, 112.722871))
sketch5.addConstraint(Sketcher.Constraint("DistanceY", 14, 3, -1, 1, 192.747258))
sketch5.addConstraint(Sketcher.Constraint("DistanceX", -1, 1, 15, 3, 194.747258))
sketch5.addConstraint(Sketcher.Constraint("DistanceX", 2, 3, 5, 3, 11.313708))
sketch5.addConstraint(Sketcher.Constraint("DistanceY", 5, 3, 2, 3, 11.313708))
sketch5.addConstraint(Sketcher.Constraint("DistanceY", 3, 3, 5, 3, 70.710678))
sketch5.addConstraint(Sketcher.Constraint("DistanceX", 5, 3, 0, 3, 70.710678))
sketch5.addConstraint(Sketcher.Constraint("DistanceX", 3, 3, 6, 3, 11.313708))
sketch5.addConstraint(Sketcher.Constraint("DistanceY", 6, 3, 3, 3, 11.313708))
sketch5.addConstraint(Sketcher.Constraint("DistanceX", 6, 3, 9, 3, 118.793939))
sketch5.addConstraint(Sketcher.Constraint("DistanceY", 9, 3, 6, 3, 118.793939))
sketch5.addConstraint(Sketcher.Constraint("DistanceX", 5, 3, 10, 3, 118.793939))
sketch5.addConstraint(Sketcher.Constraint("DistanceY", 10, 3, 5, 3, 118.793939))
sketch5.addConstraint(Sketcher.Constraint("DistanceX", 9, 3, 12, 3, 11.313708))
sketch5.addConstraint(Sketcher.Constraint("DistanceY", 13, 3, 10, 3, 11.313708))
pocket4 = body.newObject("PartDesign::Pocket", "Pocket003")
pocket4.Profile = sketch5
pocket4.Type = "ThroughAll"
pocket4.Reversed = True

# Sketch on XZ plane
sketch6 = body.newObject("Sketcher::SketchObject", "Sketch005")
sketch6.AttachmentSupport = (doc.getObject("XZ_Plane"), [""])
sketch6.MapMode = "FlatFace"
sketch6.AttachmentOffset = App.Placement(App.Vector(0, 0, -3), App.Rotation())
sketch6.addGeometry(Part.Circle(App.Vector(-40, -35, 0), App.Vector(0, 0, 1), 2.1), False)
sketch6.addGeometry(Part.Circle(App.Vector(40, -35, 0), App.Vector(0, 0, 1), 2.1), False)
sketch6.addGeometry(Part.Circle(App.Vector(40, 35, 0), App.Vector(0, 0, 1), 2.1), False)
sketch6.addGeometry(Part.Circle(App.Vector(-40, 35, 0), App.Vector(0, 0, 1), 2.1), False)
sketch6.addConstraint(Sketcher.Constraint("Equal", 0, 1))
sketch6.addConstraint(Sketcher.Constraint("Equal", 1, 2))
sketch6.addConstraint(Sketcher.Constraint("Equal", 2, 3))
sketch6.addConstraint(Sketcher.Constraint("Symmetric", 0, 3, 2, 3, -1, 1))
sketch6.addConstraint(Sketcher.Constraint("Symmetric", 1, 3, 3, 3, -1, 1))
sketch6.addConstraint(Sketcher.Constraint("Symmetric", 0, 3, 1, 3, -2))
sketch6.addConstraint(Sketcher.Constraint("Diameter", 0, 4.2))
sketch6.addConstraint(Sketcher.Constraint("DistanceX", 0, 3, -1, 1, 40.0))
sketch6.addConstraint(Sketcher.Constraint("DistanceY", 0, 3, -1, 1, 35.0))
pocket5 = body.newObject("PartDesign::Pocket", "Pocket004")
pocket5.Profile = sketch6
pocket5.Length = 10
pocket5.Reversed = True

# Sketch on XZ plane
sketch7 = body.newObject("Sketcher::SketchObject", "Sketch006")
sketch7.AttachmentSupport = (doc.getObject("XZ_Plane"), [""])
sketch7.MapMode = "FlatFace"
sketch7.AttachmentOffset = App.Placement(App.Vector(0, 0, -3), App.Rotation())
sketch7.addGeometry(Part.Circle(App.Vector(340, -88, 0), App.Vector(0, 0, 1), 2.1), False)
sketch7.addGeometry(Part.Circle(App.Vector(340, 88, 0), App.Vector(0, 0, 1), 2.1), False)
sketch7.addGeometry(Part.Circle(App.Vector(-340, 88, 0), App.Vector(0, 0, 1), 2.1), False)
sketch7.addGeometry(Part.Circle(App.Vector(-340, -88, 0), App.Vector(0, 0, 1), 2.1), False)
sketch7.addGeometry(Part.Circle(App.Vector(-90, -330, 0), App.Vector(0, 0, 1), 2.1), False)
sketch7.addGeometry(Part.Circle(App.Vector(90, -330, 0), App.Vector(0, 0, 1), 2.1), False)
sketch7.addGeometry(Part.Circle(App.Vector(90, 330, 0), App.Vector(0, 0, 1), 2.1), False)
sketch7.addGeometry(Part.Circle(App.Vector(-90, 330, 0), App.Vector(0, 0, 1), 2.1), False)
sketch7.addConstraint(Sketcher.Constraint("Equal", 0, 1))
sketch7.addConstraint(Sketcher.Constraint("Equal", 1, 2))
sketch7.addConstraint(Sketcher.Constraint("Equal", 2, 3))
sketch7.addConstraint(Sketcher.Constraint("Equal", 3, 4))
sketch7.addConstraint(Sketcher.Constraint("Equal", 4, 5))
sketch7.addConstraint(Sketcher.Constraint("Equal", 5, 6))
sketch7.addConstraint(Sketcher.Constraint("Equal", 6, 7))
sketch7.addConstraint(Sketcher.Constraint("Symmetric", 0, 3, 2, 3, -1, 1))
sketch7.addConstraint(Sketcher.Constraint("Symmetric", 1, 3, 3, 3, -1, 1))
sketch7.addConstraint(Sketcher.Constraint("Symmetric", 4, 3, 6, 3, -1, 1))
sketch7.addConstraint(Sketcher.Constraint("Symmetric", 5, 3, 7, 3, -1, 1))
sketch7.addConstraint(Sketcher.Constraint("Symmetric", 1, 3, 2, 3, -2))
sketch7.addConstraint(Sketcher.Constraint("Symmetric", 4, 3, 5, 3, -2))
sketch7.addConstraint(Sketcher.Constraint("Diameter", 0, 4.2))
sketch7.addConstraint(Sketcher.Constraint("DistanceX", -1, 1, 0, 3, 340.0))
sketch7.addConstraint(Sketcher.Constraint("DistanceY", 0, 3, -1, 1, 88.0))
sketch7.addConstraint(Sketcher.Constraint("DistanceX", 4, 3, -1, 1, 90.0))
sketch7.addConstraint(Sketcher.Constraint("DistanceY", 4, 3, -1, 1, 330.0))
pocket6 = body.newObject("PartDesign::Pocket", "Pocket005")
pocket6.Profile = sketch7
pocket6.Length = 10
pocket6.Reversed = True

# Sketch on XZ plane
sketch8 = body.newObject("Sketcher::SketchObject", "Sketch007")
sketch8.AttachmentSupport = (doc.getObject("XZ_Plane"), [""])
sketch8.MapMode = "FlatFace"
sketch8.AttachmentOffset = App.Placement(App.Vector(0, 0, -3), App.Rotation())
add_polygon(sketch8, [(0, -350), (0, 350), (360, 350), (360, -350)])  # lines 0-3
sketch8.addConstraint(Sketcher.Constraint("Vertical", 0))
sketch8.addConstraint(Sketcher.Constraint("Horizontal", 1))
sketch8.addConstraint(Sketcher.Constraint("Vertical", 2))
sketch8.addConstraint(Sketcher.Constraint("Horizontal", 3))
sketch8.addConstraint(Sketcher.Constraint("Symmetric", 0, 2, 3, 2, -1, 1))
sketch8.addConstraint(Sketcher.Constraint("DistanceX", 1, 1, 1, 2, 360.0))
sketch8.addConstraint(Sketcher.Constraint("DistanceY", 0, 1, 0, 2, 700.0))
pocket7 = body.newObject("PartDesign::Pocket", "Pocket006")
pocket7.Profile = sketch8
pocket7.Length = 10
pocket7.Reversed = True

doc.recompute()
